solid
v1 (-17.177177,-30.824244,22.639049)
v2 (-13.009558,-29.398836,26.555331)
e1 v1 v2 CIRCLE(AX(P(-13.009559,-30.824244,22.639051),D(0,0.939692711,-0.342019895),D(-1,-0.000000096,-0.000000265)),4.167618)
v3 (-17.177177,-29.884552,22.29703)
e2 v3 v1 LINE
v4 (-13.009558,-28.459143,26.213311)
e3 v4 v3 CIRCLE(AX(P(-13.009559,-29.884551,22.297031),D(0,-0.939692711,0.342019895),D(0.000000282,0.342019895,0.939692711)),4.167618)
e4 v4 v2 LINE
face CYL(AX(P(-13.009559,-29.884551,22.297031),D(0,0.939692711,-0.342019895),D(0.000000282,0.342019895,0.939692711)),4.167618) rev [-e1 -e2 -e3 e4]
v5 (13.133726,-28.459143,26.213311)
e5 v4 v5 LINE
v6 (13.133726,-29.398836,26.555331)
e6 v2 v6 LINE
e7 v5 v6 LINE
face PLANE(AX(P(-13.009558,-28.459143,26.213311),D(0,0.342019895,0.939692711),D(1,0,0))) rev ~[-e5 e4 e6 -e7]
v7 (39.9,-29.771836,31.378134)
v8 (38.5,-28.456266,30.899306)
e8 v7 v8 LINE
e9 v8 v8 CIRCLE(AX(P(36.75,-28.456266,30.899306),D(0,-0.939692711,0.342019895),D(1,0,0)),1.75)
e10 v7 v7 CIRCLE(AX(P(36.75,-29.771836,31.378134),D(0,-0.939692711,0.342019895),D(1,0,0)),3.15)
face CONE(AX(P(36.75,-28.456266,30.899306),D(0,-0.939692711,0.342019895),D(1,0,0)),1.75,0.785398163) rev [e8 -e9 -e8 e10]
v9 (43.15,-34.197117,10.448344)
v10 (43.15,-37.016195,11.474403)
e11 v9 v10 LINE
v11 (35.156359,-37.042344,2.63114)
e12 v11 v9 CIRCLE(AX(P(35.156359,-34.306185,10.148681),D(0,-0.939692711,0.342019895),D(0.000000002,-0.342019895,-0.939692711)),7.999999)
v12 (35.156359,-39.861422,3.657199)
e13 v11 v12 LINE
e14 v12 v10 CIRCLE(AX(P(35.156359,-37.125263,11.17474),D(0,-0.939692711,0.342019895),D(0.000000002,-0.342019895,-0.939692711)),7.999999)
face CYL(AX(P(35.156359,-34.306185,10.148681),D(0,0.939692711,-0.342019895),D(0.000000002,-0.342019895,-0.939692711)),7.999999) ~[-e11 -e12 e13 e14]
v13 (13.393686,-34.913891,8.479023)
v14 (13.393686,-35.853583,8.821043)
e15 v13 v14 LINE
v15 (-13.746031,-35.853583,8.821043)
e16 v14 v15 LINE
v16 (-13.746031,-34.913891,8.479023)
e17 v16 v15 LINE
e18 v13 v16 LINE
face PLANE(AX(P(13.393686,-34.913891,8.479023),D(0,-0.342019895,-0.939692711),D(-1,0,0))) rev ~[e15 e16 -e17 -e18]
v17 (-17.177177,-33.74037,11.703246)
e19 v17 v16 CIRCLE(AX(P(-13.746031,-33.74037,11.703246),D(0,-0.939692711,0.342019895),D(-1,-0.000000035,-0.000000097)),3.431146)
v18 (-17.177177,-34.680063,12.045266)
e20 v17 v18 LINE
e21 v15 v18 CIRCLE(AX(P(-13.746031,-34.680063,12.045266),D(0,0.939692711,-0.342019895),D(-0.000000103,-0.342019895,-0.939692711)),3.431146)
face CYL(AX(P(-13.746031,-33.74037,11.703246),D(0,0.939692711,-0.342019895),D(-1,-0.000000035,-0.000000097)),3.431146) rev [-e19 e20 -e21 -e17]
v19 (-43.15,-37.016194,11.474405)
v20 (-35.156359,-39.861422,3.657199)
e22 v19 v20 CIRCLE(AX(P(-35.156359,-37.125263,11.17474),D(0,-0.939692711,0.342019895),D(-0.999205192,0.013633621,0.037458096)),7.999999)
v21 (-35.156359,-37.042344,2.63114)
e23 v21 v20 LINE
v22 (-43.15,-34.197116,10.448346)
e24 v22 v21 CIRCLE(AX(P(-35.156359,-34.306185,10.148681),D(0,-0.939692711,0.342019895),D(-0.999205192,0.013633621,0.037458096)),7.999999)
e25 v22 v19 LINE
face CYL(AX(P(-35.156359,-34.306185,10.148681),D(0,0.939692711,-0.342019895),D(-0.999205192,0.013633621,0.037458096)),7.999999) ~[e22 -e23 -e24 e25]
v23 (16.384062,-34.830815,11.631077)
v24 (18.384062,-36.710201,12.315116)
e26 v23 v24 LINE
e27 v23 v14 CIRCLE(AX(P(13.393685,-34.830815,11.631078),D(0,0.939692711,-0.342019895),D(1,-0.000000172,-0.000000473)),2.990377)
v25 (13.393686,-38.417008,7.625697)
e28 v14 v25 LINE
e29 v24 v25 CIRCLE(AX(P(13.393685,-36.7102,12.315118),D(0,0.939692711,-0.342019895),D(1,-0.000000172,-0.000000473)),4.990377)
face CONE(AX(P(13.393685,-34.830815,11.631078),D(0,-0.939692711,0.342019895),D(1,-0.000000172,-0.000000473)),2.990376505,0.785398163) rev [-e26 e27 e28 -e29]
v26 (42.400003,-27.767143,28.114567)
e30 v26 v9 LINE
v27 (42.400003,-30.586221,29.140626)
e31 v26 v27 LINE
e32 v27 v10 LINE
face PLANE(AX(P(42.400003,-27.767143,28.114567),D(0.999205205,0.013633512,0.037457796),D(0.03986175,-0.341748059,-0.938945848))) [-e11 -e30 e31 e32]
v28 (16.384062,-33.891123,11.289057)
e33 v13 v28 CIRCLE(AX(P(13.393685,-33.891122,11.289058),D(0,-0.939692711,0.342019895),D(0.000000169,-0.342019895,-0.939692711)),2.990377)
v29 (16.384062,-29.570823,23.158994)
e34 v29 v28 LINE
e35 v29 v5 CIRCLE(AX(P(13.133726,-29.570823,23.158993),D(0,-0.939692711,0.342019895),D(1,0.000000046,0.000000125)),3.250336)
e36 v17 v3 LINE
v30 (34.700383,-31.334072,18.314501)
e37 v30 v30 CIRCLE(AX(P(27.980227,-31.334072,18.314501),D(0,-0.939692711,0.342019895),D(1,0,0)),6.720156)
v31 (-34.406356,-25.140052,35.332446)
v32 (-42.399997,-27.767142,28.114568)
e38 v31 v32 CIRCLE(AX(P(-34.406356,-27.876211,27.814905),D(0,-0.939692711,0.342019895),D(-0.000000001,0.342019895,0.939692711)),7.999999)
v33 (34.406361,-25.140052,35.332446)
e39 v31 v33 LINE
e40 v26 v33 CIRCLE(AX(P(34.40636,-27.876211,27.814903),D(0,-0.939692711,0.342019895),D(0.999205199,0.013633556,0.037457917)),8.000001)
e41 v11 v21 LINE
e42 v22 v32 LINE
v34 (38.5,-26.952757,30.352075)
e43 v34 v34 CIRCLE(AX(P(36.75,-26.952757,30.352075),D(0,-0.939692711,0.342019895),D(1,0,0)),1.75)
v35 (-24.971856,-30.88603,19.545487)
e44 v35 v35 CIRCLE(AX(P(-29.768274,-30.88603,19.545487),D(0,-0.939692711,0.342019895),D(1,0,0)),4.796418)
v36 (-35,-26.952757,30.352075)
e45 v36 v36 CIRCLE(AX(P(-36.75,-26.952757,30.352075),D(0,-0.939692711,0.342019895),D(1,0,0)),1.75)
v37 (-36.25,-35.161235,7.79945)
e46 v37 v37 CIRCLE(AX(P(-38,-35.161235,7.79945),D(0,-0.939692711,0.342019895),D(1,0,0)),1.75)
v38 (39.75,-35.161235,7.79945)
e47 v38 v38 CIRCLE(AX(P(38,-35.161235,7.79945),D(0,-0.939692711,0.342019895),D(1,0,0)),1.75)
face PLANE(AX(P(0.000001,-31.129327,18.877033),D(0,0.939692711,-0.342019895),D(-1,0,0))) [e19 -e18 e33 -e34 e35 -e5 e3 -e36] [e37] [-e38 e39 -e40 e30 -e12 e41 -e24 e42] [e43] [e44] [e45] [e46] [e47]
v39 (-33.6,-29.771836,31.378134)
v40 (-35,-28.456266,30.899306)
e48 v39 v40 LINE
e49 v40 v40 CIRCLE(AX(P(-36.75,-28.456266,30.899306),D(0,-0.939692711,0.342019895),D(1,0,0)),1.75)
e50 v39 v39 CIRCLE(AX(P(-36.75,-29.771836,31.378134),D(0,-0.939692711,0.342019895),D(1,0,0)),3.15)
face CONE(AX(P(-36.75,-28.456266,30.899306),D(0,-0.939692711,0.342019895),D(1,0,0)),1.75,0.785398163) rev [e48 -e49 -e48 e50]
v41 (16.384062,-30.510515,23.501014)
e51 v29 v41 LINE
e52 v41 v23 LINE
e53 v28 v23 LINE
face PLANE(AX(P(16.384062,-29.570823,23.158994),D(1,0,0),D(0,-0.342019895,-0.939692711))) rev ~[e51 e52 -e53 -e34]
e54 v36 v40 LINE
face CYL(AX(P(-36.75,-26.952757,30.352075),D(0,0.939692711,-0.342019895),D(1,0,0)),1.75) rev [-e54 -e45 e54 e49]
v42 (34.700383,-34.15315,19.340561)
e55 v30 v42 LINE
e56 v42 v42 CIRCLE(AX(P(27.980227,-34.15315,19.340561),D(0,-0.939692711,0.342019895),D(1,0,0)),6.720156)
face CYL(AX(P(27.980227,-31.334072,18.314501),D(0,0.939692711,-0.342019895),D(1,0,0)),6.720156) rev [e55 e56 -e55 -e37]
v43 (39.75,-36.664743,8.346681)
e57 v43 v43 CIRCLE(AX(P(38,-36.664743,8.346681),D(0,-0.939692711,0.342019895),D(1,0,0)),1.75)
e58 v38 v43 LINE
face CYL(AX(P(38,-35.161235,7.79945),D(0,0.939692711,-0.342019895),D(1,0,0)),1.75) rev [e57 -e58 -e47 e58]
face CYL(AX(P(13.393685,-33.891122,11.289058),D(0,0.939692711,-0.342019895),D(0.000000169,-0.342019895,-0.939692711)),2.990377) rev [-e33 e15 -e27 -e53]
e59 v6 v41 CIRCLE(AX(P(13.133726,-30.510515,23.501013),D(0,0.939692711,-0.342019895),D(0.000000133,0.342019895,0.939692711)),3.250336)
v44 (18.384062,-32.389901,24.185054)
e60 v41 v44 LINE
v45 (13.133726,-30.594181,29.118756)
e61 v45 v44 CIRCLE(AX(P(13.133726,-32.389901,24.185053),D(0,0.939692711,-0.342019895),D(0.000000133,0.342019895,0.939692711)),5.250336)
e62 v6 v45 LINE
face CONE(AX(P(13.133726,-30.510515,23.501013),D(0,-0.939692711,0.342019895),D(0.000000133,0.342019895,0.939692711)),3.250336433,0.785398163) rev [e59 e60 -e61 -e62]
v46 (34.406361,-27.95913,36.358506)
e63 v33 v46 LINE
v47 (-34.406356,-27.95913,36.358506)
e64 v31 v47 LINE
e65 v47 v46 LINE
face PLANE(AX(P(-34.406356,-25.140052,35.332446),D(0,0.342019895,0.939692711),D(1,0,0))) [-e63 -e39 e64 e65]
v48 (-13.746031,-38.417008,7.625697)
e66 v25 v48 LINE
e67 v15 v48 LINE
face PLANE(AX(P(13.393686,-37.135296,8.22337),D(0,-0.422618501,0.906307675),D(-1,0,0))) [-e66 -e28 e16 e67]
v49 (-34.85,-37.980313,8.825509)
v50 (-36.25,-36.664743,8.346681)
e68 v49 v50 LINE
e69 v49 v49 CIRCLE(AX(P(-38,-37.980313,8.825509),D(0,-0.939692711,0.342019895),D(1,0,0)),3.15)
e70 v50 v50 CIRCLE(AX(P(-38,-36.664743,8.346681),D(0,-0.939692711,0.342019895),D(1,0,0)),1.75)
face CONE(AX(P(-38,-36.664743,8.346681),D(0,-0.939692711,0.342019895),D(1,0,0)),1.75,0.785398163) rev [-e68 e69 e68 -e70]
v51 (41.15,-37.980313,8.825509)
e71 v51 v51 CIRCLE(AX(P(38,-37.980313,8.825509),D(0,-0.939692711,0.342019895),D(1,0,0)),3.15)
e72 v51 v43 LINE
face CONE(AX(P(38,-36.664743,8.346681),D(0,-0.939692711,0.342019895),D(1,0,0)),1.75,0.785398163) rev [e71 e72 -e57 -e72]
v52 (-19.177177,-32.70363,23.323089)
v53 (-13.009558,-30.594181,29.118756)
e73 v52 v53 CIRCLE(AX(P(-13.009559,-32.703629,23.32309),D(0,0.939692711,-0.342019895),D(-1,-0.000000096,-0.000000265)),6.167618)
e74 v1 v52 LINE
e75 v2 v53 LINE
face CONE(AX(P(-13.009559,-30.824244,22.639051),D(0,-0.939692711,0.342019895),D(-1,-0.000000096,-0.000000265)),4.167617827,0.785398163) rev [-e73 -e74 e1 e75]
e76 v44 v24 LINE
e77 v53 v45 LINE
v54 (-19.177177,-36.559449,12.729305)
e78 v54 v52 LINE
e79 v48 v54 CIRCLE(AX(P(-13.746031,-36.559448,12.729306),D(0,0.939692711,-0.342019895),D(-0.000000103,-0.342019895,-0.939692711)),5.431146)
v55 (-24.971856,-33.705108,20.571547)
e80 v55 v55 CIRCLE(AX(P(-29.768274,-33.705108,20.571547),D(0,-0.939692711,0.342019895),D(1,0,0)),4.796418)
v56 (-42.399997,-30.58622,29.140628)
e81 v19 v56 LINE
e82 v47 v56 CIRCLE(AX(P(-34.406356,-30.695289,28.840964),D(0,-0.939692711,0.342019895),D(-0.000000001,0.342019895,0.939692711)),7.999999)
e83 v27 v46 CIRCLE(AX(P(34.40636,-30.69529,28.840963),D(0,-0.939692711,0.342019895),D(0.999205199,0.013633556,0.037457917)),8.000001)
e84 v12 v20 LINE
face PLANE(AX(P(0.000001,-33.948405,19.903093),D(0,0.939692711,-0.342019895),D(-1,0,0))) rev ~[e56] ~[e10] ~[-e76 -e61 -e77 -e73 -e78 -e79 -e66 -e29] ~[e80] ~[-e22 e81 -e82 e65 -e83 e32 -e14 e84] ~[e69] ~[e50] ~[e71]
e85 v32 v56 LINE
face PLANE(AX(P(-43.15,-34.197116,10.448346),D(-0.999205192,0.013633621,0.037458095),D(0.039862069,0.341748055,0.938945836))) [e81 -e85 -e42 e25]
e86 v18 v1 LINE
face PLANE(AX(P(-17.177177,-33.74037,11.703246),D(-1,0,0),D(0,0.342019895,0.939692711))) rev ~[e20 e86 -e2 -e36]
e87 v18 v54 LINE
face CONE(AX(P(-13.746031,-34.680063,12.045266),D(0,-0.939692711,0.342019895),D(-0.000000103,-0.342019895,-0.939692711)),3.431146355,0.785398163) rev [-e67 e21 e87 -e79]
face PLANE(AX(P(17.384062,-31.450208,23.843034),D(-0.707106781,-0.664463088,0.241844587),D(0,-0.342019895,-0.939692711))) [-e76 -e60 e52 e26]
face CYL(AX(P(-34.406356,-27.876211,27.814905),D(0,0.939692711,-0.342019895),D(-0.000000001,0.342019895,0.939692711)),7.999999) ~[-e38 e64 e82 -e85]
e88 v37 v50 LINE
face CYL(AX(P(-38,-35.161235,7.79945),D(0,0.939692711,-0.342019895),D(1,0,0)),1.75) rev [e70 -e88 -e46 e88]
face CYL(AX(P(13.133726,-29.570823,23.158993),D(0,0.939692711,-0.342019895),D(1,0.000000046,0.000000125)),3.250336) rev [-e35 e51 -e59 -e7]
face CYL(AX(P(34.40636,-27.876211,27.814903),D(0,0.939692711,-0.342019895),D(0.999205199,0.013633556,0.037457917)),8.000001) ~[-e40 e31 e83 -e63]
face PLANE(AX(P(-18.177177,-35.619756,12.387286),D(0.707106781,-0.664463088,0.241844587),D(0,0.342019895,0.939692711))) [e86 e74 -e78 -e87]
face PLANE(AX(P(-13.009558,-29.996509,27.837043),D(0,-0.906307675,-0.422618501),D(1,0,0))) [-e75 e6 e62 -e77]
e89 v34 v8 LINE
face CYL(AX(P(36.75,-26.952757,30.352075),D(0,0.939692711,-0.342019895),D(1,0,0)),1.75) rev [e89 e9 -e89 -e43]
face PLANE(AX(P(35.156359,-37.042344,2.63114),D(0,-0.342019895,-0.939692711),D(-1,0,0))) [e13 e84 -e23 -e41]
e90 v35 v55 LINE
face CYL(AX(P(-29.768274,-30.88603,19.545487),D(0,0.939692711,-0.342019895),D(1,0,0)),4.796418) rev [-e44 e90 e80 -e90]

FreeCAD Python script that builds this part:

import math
import FreeCAD as App
import Part
import Sketcher
from FreeCAD import Vector
Q = App.Units.Quantity


def edges_at(feature, points):
    """Names of the edges that pass closest to the given points."""
    edges = feature.Shape.Edges
    near = lambda p: min(range(len(edges)), key=lambda i: edges[i].distToShape(Part.Vertex(*p))[0])
    return sorted({f"Edge{near(p) + 1}" for p in points})

doc = App.newDocument("Part")
body = doc.addObject("PartDesign::Body", "Body")

sketch1 = body.newObject("Sketcher::SketchObject", "Sketch")
sketch1.Placement = App.Placement(Vector(0, -38, 0), App.Rotation(Vector(1, 0, 0), Vector(0, 0.342019895, 0.939692711), Vector(0, -0.939692711, 0.342019895), "ZXY"))
sketch1.addGeometry([
    Part.LineSegment(Vector(34.406361, 37.6, 0), Vector(-34.406356, 37.6, 0)),
    Part.ArcOfCircle(Part.Circle(Vector(-34.406356, 29.600001, 0), Vector(0, 0, 1), 7.999999), math.radians(90), math.radians(177.715474)),
    Part.LineSegment(Vector(-42.399997, 29.918896, 0), Vector(-43.15, 11.118896, 0)),
    Part.ArcOfCircle(Part.Circle(Vector(-35.156359, 10.799999, 0), Vector(0, 0, 1), 7.999999), math.radians(177.715466), math.radians(270)),
    Part.LineSegment(Vector(-35.156359, 2.8, 0), Vector(35.156359, 2.8, 0)),
    Part.ArcOfCircle(Part.Circle(Vector(35.156359, 10.799999, 0), Vector(0, 0, 1), 7.999999), math.radians(-90), math.radians(2.28452)),
    Part.LineSegment(Vector(43.15, 11.118894, 0), Vector(42.400003, 29.918894, 0)),
    Part.ArcOfCircle(Part.Circle(Vector(34.40636, 29.599999, 0), Vector(0, 0, 1), 8.000001), math.radians(2.284523), math.radians(89.999995)),
    Part.Circle(Vector(38, 8.3, 0), Vector(0, 0, 1), 1.75),
    Part.Circle(Vector(27.980227, 19.489883, 0), Vector(0, 0, 1), 6.720156),
    Part.Circle(Vector(-38, 8.3, 0), Vector(0, 0, 1), 1.75),
    Part.LineSegment(Vector(-13.009558, 27.89562, 0), Vector(13.133726, 27.89562, 0)),
    Part.ArcOfCircle(Part.Circle(Vector(13.133726, 24.645284, 0), Vector(0, 0, 1), 3.250336), math.radians(0.000008), math.radians(89.999992)),
    Part.LineSegment(Vector(16.384062, 24.645284, 0), Vector(16.384062, 12.013562, 0)),
    Part.ArcOfCircle(Part.Circle(Vector(13.393685, 12.013564, 0), Vector(0, 0, 1), 2.990377), math.radians(-89.99999), math.radians(-0.000029)),
    Part.LineSegment(Vector(13.393686, 9.023187, 0), Vector(-13.746031, 9.023187, 0)),
    Part.ArcOfCircle(Part.Circle(Vector(-13.746031, 12.454333, 0), Vector(0, 0, 1), 3.431146), math.radians(-179.999994), math.radians(-90.000006)),
    Part.LineSegment(Vector(-17.177177, 12.454333, 0), Vector(-17.177177, 23.728001, 0)),
    Part.ArcOfCircle(Part.Circle(Vector(-13.009559, 23.728002, 0), Vector(0, 0, 1), 4.167618), math.radians(89.999984), math.radians(180.000016)),
    Part.Circle(Vector(36.75, 32.3, 0), Vector(0, 0, 1), 1.75),
    Part.Circle(Vector(-29.768274, 20.799871, 0), Vector(0, 0, 1), 4.796418),
    Part.Circle(Vector(-36.75, 32.3, 0), Vector(0, 0, 1), 1.75),
], False)
sketch1.addConstraint([
    Sketcher.Constraint("Tangent", 0, 2, 1, 1),
    Sketcher.Constraint("Tangent", 1, 2, 2, 1),
    Sketcher.Constraint("Tangent", 2, 2, 3, 1),
    Sketcher.Constraint("Tangent", 3, 2, 4, 1),
    Sketcher.Constraint("Tangent", 4, 2, 5, 1),
    Sketcher.Constraint("Tangent", 5, 2, 6, 1),
    Sketcher.Constraint("Tangent", 6, 2, 7, 1),
    Sketcher.Constraint("Tangent", 7, 2, 0, 1),
    Sketcher.Constraint("Tangent", 11, 2, 12, 2),
    Sketcher.Constraint("Tangent", 12, 1, 13, 1),
    Sketcher.Constraint("Tangent", 13, 2, 14, 2),
    Sketcher.Constraint("Tangent", 14, 1, 15, 1),
    Sketcher.Constraint("Tangent", 15, 2, 16, 2),
    Sketcher.Constraint("Tangent", 16, 1, 17, 1),
    Sketcher.Constraint("Tangent", 17, 2, 18, 2),
    Sketcher.Constraint("Tangent", 18, 1, 11, 1),
    Sketcher.Constraint("Horizontal", 0),
    Sketcher.Constraint("Horizontal", 4),
    Sketcher.Constraint("Horizontal", 11),
    Sketcher.Constraint("Vertical", 13),
    Sketcher.Constraint("Horizontal", 15),
    Sketcher.Constraint("Vertical", 17),
    Sketcher.Constraint("Equal", 1, 3),
    Sketcher.Constraint("Equal", 3, 5),
    Sketcher.Constraint("Equal", 5, 7),
    Sketcher.Constraint("Equal", 8, 10),
    Sketcher.Constraint("Equal", 10, 19),
    Sketcher.Constraint("Equal", 19, 21),
    Sketcher.Constraint("Symmetric", 8, 3, 10, 3, -2),
    Sketcher.Constraint("Symmetric", 19, 3, 21, 3, -2),
    Sketcher.Constraint("Symmetric", 2, 2, 5, 2, -2),
    Sketcher.Constraint("Radius", 1, Q("7.999999 mm")),
    Sketcher.Constraint("Diameter", 8, Q("3.5 mm")),
    Sketcher.Constraint("DistanceX", -1, 1, 8, 3, Q("38 mm")),
    Sketcher.Constraint("DistanceY", 8, 3, 19, 3, Q("24 mm")),
    Sketcher.Constraint("DistanceY", -1, 1, 1, 3, Q("29.600001 mm")),
    Sketcher.Constraint("DistanceY", -1, 1, 3, 3, Q("10.799999 mm")),
    Sketcher.Constraint("DistanceY", -1, 1, 8, 3, Q("8.3 mm")),
    Sketcher.Constraint("DistanceX", -1, 1, 19, 3, Q("36.75 mm")),
    Sketcher.Constraint("DistanceX", 2, 2, -1, 1, Q("43.15 mm")),
    Sketcher.Constraint("DistanceX", 7, 3, 5, 3, Q("0.749999 mm")),
    Sketcher.Constraint("Diameter", 9, Q("13.440312 mm")),
    Sketcher.Constraint("Diameter", 20, Q("9.592836 mm")),
    Sketcher.Constraint("DistanceY", -1, 1, 17, 2, Q("23.728001 mm")),
    Sketcher.Constraint("Radius", 12, Q("3.250336 mm")),
    Sketcher.Constraint("Radius", 14, Q("2.990377 mm")),
    Sketcher.Constraint("Radius", 16, Q("3.431146 mm")),
    Sketcher.Constraint("Radius", 18, Q("4.167618 mm")),
    Sketcher.Constraint("DistanceY", 13, 2, 13, 1, Q("12.631722 mm")),
    Sketcher.Constraint("DistanceX", 12, 3, 9, 3, Q("14.846501 mm")),
    Sketcher.Constraint("DistanceY", 9, 3, 12, 3, Q("5.155401 mm")),
    Sketcher.Constraint("DistanceX", 3, 3, 18, 3, Q("22.1468 mm")),
    Sketcher.Constraint("DistanceX", 12, 1, 7, 3, Q("18.022298 mm")),
    Sketcher.Constraint("DistanceY", -1, 1, 20, 3, Q("20.799871 mm")),
    Sketcher.Constraint("DistanceX", 1, 3, 20, 3, Q("4.638082 mm")),
])
pad1 = body.newObject("PartDesign::Pad", "Pad")
pad1.Profile = sketch1
pad1.Length = 3
doc.recompute()

chamfer = body.newObject("PartDesign::Chamfer", "Chamfer")
chamfer.Base = (pad1, edges_at(pad1, [(0.062, -31.278, 27.239)]))
chamfer.Size = 2
doc.recompute()

chamfer2 = body.newObject("PartDesign::Chamfer", "Chamfer001")
chamfer2.Base = (chamfer, edges_at(chamfer, [
    (-38.5, -29.772, 31.378),
    (-39.75, -37.98, 8.826),
    (35, -29.772, 31.378),
    (36.25, -37.98, 8.826),
]))
chamfer2.Size = 1.4

doc.recompute()
